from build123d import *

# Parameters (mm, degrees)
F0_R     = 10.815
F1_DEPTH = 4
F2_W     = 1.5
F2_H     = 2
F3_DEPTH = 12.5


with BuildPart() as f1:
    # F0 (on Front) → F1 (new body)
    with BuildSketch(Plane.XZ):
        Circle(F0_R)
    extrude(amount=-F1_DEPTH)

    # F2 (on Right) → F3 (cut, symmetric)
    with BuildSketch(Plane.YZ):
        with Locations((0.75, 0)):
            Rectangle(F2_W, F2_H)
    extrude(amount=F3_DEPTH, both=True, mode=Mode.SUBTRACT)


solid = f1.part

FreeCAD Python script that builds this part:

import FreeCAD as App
import Part
import Sketcher


def add_polygon(sketch, points):
    """Adds a closed chain of lines whose ends are joined by coincident constraints."""
    first, n = sketch.GeometryCount, len(points)
    for a, b in zip(points, points[1:] + points[:1]):
        sketch.addGeometry(Part.LineSegment(App.Vector(*a, 0), App.Vector(*b, 0)), False)
    for i in range(n):
        sketch.addConstraint(Sketcher.Constraint("Coincident", first + i, 2, first + (i + 1) % n, 1))

doc = App.newDocument("Part")
body = doc.addObject("PartDesign::Body", "Body")

sketch1 = body.newObject("Sketcher::SketchObject", "Sketch")
sketch1.AttachmentSupport = (doc.getObject("XZ_Plane"), [""])
sketch1.MapMode = "FlatFace"
sketch1.addGeometry(Part.Circle(App.Vector(0, 0, 0), App.Vector(0, 0, 1), 10.815), False)
sketch1.addConstraint([
    Sketcher.Constraint("Coincident", 0, 3, -1, 1),
    Sketcher.Constraint("Diameter", 0, 21.63),
])
pad1 = body.newObject("PartDesign::Pad", "Pad")
pad1.Profile = sketch1
pad1.Length = 4
pad1.Reversed = True

sketch2 = body.newObject("Sketcher::SketchObject", "Sketch001")
sketch2.AttachmentSupport = (doc.getObject("YZ_Plane"), [""])
sketch2.MapMode = "FlatFace"
add_polygon(sketch2, [(0, 1), (0, -1), (1.5, -1), (1.5, 1)])
sketch2.addConstraint([
    Sketcher.Constraint("Vertical", 0),
    Sketcher.Constraint("Horizontal", 1),
    Sketcher.Constraint("Vertical", 2),
    Sketcher.Constraint("Horizontal", 3),
    Sketcher.Constraint("Symmetric", 0, 2, 3, 2, -1, 1),
    Sketcher.Constraint("DistanceY", 0, 2, 0, 1, 2.0),
    Sketcher.Constraint("DistanceX", 1, 1, 1, 2, 1.5),
])
pocket1 = body.newObject("PartDesign::Pocket", "Pocket")
pocket1.Profile = sketch2
pocket1.Length = 25
pocket1.Midplane = True

doc.recompute()
